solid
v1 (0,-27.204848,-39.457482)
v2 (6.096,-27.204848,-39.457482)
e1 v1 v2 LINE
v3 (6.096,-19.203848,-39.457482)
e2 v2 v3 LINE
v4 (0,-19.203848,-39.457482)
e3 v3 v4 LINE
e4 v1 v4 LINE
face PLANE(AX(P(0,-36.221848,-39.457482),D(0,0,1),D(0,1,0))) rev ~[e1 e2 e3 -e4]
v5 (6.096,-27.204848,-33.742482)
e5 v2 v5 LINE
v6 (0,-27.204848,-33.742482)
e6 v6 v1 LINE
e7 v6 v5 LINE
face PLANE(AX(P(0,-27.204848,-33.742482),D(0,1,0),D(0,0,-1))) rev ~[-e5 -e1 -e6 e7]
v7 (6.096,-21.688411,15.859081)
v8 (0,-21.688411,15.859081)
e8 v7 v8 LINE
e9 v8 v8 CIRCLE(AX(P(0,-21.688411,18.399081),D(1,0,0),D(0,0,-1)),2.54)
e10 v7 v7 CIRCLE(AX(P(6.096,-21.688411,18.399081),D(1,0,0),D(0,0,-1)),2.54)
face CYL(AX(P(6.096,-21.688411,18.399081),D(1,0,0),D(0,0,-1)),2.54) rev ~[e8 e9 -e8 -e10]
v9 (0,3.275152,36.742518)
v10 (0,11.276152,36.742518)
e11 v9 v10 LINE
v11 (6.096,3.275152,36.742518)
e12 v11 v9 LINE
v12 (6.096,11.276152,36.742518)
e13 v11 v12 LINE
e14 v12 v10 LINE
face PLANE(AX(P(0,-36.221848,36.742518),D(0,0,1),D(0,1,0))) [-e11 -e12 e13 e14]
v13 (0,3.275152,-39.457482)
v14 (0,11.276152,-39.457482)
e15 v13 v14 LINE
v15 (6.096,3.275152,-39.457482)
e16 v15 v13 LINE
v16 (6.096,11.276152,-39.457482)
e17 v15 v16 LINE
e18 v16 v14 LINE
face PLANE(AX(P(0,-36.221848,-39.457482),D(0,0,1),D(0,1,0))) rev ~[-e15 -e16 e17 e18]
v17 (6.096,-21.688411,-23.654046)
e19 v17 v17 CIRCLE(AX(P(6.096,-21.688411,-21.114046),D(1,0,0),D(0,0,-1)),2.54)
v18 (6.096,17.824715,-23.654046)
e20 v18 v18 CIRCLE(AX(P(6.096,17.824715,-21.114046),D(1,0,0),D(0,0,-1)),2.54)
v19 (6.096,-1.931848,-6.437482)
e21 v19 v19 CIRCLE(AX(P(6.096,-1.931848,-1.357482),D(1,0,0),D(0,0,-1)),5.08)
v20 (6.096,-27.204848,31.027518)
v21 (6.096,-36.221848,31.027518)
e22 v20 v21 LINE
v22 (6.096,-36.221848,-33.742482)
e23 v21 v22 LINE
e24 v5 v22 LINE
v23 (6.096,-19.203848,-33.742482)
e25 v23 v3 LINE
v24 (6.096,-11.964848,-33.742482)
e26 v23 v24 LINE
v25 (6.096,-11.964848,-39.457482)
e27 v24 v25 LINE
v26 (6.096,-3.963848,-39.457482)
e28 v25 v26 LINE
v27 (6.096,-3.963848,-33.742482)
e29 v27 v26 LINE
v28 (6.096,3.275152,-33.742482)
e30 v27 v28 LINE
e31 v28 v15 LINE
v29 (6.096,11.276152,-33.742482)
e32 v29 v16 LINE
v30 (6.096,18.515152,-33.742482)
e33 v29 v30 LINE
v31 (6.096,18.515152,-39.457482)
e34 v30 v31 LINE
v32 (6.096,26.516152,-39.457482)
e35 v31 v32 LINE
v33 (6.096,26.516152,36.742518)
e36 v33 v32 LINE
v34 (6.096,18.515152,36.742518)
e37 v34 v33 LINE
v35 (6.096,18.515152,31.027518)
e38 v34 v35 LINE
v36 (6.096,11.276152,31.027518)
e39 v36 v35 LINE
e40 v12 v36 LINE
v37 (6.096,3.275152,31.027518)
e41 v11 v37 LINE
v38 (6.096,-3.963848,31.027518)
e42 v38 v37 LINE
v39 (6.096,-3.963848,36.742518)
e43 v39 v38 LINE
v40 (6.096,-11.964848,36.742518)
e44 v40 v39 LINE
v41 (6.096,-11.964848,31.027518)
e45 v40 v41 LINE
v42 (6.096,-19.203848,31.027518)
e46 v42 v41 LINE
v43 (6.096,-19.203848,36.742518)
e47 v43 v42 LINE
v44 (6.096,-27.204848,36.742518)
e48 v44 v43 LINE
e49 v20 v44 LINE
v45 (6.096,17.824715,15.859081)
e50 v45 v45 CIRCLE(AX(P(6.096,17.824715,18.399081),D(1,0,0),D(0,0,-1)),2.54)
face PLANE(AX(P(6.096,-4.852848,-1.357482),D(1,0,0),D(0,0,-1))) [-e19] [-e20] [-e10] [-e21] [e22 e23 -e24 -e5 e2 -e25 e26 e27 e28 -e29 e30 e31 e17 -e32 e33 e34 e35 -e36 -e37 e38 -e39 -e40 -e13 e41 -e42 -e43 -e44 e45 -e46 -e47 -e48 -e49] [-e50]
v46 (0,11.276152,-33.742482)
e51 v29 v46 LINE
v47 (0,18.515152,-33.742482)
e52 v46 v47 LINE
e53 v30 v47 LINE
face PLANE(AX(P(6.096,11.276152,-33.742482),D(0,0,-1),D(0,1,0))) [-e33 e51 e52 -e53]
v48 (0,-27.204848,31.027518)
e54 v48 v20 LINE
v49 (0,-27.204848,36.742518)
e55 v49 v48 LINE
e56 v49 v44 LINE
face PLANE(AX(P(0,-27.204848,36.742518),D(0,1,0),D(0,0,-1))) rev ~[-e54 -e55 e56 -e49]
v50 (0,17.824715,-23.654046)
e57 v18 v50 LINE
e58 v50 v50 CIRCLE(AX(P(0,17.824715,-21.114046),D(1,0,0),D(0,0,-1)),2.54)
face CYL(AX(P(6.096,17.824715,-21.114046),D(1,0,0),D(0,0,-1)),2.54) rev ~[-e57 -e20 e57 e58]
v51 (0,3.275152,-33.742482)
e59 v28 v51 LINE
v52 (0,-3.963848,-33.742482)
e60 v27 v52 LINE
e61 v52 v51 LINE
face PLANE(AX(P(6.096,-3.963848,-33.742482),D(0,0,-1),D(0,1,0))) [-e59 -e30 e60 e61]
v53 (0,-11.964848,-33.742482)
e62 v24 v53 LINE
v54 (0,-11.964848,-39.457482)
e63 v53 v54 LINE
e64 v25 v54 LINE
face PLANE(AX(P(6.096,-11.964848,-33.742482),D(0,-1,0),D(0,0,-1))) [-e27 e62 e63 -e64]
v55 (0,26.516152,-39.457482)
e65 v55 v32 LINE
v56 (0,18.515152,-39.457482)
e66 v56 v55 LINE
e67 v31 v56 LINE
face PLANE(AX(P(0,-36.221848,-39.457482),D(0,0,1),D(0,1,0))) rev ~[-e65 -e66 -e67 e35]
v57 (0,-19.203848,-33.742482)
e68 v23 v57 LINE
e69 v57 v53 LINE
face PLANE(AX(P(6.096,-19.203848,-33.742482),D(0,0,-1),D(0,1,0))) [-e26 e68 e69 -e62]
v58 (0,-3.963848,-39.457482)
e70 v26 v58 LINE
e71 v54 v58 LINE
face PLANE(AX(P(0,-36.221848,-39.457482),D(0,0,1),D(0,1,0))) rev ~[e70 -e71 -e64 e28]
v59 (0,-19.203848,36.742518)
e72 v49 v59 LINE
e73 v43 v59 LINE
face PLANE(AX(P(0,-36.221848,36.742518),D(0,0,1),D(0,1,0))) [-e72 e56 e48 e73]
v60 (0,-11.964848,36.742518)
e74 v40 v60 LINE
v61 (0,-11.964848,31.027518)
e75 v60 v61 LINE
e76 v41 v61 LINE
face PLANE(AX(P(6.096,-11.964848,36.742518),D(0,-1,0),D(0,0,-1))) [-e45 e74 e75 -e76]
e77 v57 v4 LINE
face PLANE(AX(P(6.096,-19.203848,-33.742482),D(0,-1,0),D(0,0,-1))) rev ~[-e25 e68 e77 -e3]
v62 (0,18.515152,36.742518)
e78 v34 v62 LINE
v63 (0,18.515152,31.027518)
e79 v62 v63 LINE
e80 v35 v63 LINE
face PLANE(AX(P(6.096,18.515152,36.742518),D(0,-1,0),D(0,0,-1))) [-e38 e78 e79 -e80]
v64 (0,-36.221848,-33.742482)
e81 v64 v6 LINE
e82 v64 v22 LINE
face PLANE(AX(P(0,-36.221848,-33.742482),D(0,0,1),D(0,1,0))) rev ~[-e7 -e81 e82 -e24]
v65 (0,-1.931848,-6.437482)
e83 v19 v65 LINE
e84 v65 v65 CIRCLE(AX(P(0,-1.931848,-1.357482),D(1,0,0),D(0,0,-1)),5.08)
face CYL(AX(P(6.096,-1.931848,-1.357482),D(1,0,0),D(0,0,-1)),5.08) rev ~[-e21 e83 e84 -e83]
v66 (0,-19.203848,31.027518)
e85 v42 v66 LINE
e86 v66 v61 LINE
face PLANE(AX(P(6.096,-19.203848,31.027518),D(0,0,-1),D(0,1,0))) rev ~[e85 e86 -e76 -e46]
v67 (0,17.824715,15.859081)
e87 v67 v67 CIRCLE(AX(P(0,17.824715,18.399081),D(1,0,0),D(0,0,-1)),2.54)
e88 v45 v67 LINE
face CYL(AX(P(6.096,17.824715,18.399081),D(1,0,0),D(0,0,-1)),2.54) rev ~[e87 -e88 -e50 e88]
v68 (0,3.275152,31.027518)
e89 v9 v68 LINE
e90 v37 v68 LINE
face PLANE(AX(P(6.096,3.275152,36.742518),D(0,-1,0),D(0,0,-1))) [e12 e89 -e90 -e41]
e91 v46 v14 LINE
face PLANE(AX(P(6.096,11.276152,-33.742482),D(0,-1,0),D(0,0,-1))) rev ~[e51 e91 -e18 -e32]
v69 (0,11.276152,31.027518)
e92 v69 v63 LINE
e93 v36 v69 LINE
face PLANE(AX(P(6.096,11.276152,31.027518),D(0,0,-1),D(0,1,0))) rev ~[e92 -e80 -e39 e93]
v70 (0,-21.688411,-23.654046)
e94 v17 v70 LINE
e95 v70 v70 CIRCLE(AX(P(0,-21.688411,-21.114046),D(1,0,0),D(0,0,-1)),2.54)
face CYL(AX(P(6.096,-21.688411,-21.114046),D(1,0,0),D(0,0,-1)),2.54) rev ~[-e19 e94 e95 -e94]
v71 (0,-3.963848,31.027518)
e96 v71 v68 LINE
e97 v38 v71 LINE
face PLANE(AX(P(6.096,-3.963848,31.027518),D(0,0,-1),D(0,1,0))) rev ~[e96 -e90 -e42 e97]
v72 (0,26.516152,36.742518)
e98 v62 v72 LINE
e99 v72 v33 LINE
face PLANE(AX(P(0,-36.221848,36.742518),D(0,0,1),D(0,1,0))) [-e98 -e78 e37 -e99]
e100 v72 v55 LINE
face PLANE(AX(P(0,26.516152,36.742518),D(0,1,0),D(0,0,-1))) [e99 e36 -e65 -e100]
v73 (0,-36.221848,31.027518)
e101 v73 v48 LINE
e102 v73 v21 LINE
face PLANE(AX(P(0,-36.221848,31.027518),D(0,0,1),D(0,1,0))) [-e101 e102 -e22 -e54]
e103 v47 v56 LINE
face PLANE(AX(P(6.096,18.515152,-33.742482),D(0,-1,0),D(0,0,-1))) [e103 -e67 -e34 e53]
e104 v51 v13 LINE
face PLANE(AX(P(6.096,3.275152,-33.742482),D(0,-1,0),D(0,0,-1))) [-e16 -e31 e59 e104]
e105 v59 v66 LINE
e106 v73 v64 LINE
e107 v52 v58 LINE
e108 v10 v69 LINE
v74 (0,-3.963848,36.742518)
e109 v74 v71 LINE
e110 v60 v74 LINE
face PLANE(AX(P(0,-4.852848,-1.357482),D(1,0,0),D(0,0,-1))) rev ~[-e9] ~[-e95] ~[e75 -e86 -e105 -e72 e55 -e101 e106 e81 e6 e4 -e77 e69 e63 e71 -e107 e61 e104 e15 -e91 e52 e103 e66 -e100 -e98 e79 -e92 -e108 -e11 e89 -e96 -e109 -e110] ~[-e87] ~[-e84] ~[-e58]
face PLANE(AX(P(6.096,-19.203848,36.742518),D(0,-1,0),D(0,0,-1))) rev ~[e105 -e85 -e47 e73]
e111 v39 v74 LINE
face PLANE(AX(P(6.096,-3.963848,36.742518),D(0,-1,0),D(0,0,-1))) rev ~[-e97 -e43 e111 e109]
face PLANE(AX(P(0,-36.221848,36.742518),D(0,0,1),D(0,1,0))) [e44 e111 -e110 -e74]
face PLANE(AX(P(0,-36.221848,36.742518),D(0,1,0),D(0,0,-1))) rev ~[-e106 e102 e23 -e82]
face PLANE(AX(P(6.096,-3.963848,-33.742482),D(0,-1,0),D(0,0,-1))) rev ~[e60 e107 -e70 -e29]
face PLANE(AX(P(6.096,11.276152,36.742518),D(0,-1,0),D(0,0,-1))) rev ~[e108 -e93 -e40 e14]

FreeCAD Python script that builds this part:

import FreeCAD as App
import Part
import Sketcher

V = App.Vector
Q = App.Units.Quantity

doc = App.newDocument("Part")
params = doc.addObject("Spreadsheet::Sheet", "Params")
for row, (alias, value) in enumerate([
    ("sketch1_height", "3 in"),
    ("sketch1_width", "2.47 in"),
    ("pad1_length", "0.24 in"),
    ("sketch2_diameter", "0.4 in"),
    ("sketch2_diameter2", "0.2 in"),
    ("pocket1_length", "0.24 in"),
    ("sketch3_width", "0.285 in"),
    ("sketch3_height", "0.225 in"),
    ("pocket2_length", "0.24 in"),
    ("sketch4_width", "0.355 in"),
    ("sketch4_height", "0.225 in"),
], start=1):
    params.set(f"A{row}", alias)
    params.set(f"B{row}", "=" + value)
    params.setAlias(f"B{row}", alias)

body = doc.addObject("PartDesign::Body", "Body")

# Sketch on YZ plane
sketch1 = body.newObject("Sketcher::SketchObject", "Sketch")
sketch1.AttachmentSupport = (doc.getObject("YZ_Plane"), [""])
sketch1.MapMode = "FlatFace"
sketch1.addGeometry([
    Part.LineSegment(V(27, 37, 0), V(-36, 37, 0)),
    Part.LineSegment(V(-36, 37, 0), V(-36, -39, 0)),
    Part.LineSegment(V(-36, -39, 0), V(27, -39, 0)),
    Part.LineSegment(V(27, -39, 0), V(27, 37, 0)),
], False)
sketch1.addConstraint([
    Sketcher.Constraint("Coincident", 0, 2, 1, 1),
    Sketcher.Constraint("Coincident", 1, 2, 2, 1),
    Sketcher.Constraint("Coincident", 2, 2, 3, 1),
    Sketcher.Constraint("Coincident", 3, 2, 0, 1),
    Sketcher.Constraint("Horizontal", 0),
    Sketcher.Constraint("Vertical", 1),
    Sketcher.Constraint("Horizontal", 2),
    Sketcher.Constraint("Vertical", 3),
    Sketcher.Constraint("DistanceY", 1, 2, 1, 1, Q("3 in")),
    Sketcher.Constraint("DistanceX", 0, 2, 0, 1, Q("2.47 in")),
    Sketcher.Constraint("DistanceX", 0, 2, -1, 1, 36.221848),
    Sketcher.Constraint("DistanceY", -1, 1, 0, 2, 36.742518),
])
sketch1.setExpression("Constraints[8]", "Params.sketch1_height")
sketch1.setExpression("Constraints[9]", "Params.sketch1_width")
pad1 = body.newObject("PartDesign::Pad", "Pad")
pad1.Profile = sketch1
pad1.setExpression("Length", "Params.pad1_length")

# Sketch on YZ plane
sketch2 = body.newObject("Sketcher::SketchObject", "Sketch001")
sketch2.AttachmentSupport = (doc.getObject("YZ_Plane"), [""])
sketch2.MapMode = "FlatFace"
sketch2.AttachmentOffset = App.Placement(V(0, 0, 0.24 * 25.4), App.Rotation())
sketch2.addGeometry([
    Part.Circle(V(-1.9, -1.4, 0), V(0, 0, 1), 5.1),  # 0
    Part.Circle(V(17.8, 18.4, 0), V(0, 0, 1), 2.5),  # 1
    Part.Circle(V(17.8, -21.1, 0), V(0, 0, 1), 2.5),  # 2
    Part.Circle(V(-21.7, -21.1, 0), V(0, 0, 1), 2.5),  # 3
    Part.Circle(V(-21.7, 18.4, 0), V(0, 0, 1), 2.5),  # 4
], False)
sketch2.addConstraint([
    Sketcher.Constraint("Equal", 1, 2),
    Sketcher.Constraint("Equal", 2, 3),
    Sketcher.Constraint("Equal", 3, 4),
    Sketcher.Constraint("Horizontal", 2, 3, 3, 3),
    Sketcher.Constraint("Horizontal", 1, 3, 4, 3),
    Sketcher.Constraint("Vertical", 1, 3, 2, 3),
    Sketcher.Constraint("Vertical", 3, 3, 4, 3),
    Sketcher.Constraint("Diameter", 0, Q("0.4 in")),
    Sketcher.Constraint("Diameter", 1, Q("0.2 in")),
    Sketcher.Constraint("DistanceY", -1, 1, 1, 3, 18.399081),
    Sketcher.Constraint("DistanceX", 3, 3, -1, 1, 21.688411),
    Sketcher.Constraint("DistanceX", 0, 3, -1, 1, 1.931848),
    Sketcher.Constraint("DistanceY", 0, 3, -1, 1, 1.357482),
    Sketcher.Constraint("DistanceX", -1, 1, 1, 3, 17.824715),
    Sketcher.Constraint("DistanceY", 2, 3, -1, 1, 21.114046),
])
sketch2.setExpression("Constraints[7]", "Params.sketch2_diameter")
sketch2.setExpression("Constraints[8]", "Params.sketch2_diameter2")
pocket1 = body.newObject("PartDesign::Pocket", "Pocket")
pocket1.Profile = sketch2
pocket1.setExpression("Length", "Params.pocket1_length")

# Sketch on YZ plane
sketch3 = body.newObject("Sketcher::SketchObject", "Sketch002")
sketch3.AttachmentSupport = (doc.getObject("YZ_Plane"), [""])
sketch3.MapMode = "FlatFace"
sketch3.AttachmentOffset = App.Placement(V(0, 0, 0.24 * 25.4), App.Rotation())
sketch3.addGeometry([
    Part.LineSegment(V(19, 37, 0), V(11, 37, 0)),  # 0
    Part.LineSegment(V(11, 37, 0), V(11, 31, 0)),  # 1
    Part.LineSegment(V(11, 31, 0), V(19, 31, 0)),  # 2
    Part.LineSegment(V(19, 31, 0), V(19, 37, 0)),  # 3
    Part.LineSegment(V(3, 37, 0), V(-4, 37, 0)),  # 4
    Part.LineSegment(V(-4, 37, 0), V(-4, 31, 0)),  # 5
    Part.LineSegment(V(-4, 31, 0), V(3, 31, 0)),  # 6
    Part.LineSegment(V(3, 31, 0), V(3, 37, 0)),  # 7
    Part.LineSegment(V(-12, 37, 0), V(-19, 37, 0)),  # 8
    Part.LineSegment(V(-19, 37, 0), V(-19, 31, 0)),  # 9
    Part.LineSegment(V(-19, 31, 0), V(-12, 31, 0)),  # 10
    Part.LineSegment(V(-12, 31, 0), V(-12, 37, 0)),  # 11
    Part.LineSegment(V(-12, -34, 0), V(-19, -34, 0)),  # 12
    Part.LineSegment(V(-19, -34, 0), V(-19, -39, 0)),  # 13
    Part.LineSegment(V(-19, -39, 0), V(-12, -39, 0)),  # 14
    Part.LineSegment(V(-12, -39, 0), V(-12, -34, 0)),  # 15
    Part.LineSegment(V(19, -34, 0), V(11, -34, 0)),  # 16
    Part.LineSegment(V(11, -34, 0), V(11, -39, 0)),  # 17
    Part.LineSegment(V(11, -39, 0), V(19, -39, 0)),  # 18
    Part.LineSegment(V(19, -39, 0), V(19, -34, 0)),  # 19
    Part.LineSegment(V(3, -34, 0), V(-4, -34, 0)),  # 20
    Part.LineSegment(V(-4, -34, 0), V(-4, -39, 0)),  # 21
    Part.LineSegment(V(-4, -39, 0), V(3, -39, 0)),  # 22
    Part.LineSegment(V(3, -39, 0), V(3, -34, 0)),  # 23
], False)
sketch3.addConstraint([
    Sketcher.Constraint("Coincident", 0, 2, 1, 1),
    Sketcher.Constraint("Coincident", 1, 2, 2, 1),
    Sketcher.Constraint("Coincident", 2, 2, 3, 1),
    Sketcher.Constraint("Coincident", 3, 2, 0, 1),
    Sketcher.Constraint("Coincident", 4, 2, 5, 1),
    Sketcher.Constraint("Coincident", 5, 2, 6, 1),
    Sketcher.Constraint("Coincident", 6, 2, 7, 1),
    Sketcher.Constraint("Coincident", 7, 2, 4, 1),
    Sketcher.Constraint("Coincident", 8, 2, 9, 1),
    Sketcher.Constraint("Coincident", 9, 2, 10, 1),
    Sketcher.Constraint("Coincident", 10, 2, 11, 1),
    Sketcher.Constraint("Coincident", 11, 2, 8, 1),
    Sketcher.Constraint("Coincident", 12, 2, 13, 1),
    Sketcher.Constraint("Coincident", 13, 2, 14, 1),
    Sketcher.Constraint("Coincident", 14, 2, 15, 1),
    Sketcher.Constraint("Coincident", 15, 2, 12, 1),
    Sketcher.Constraint("Coincident", 16, 2, 17, 1),
    Sketcher.Constraint("Coincident", 17, 2, 18, 1),
    Sketcher.Constraint("Coincident", 18, 2, 19, 1),
    Sketcher.Constraint("Coincident", 19, 2, 16, 1),
    Sketcher.Constraint("Coincident", 20, 2, 21, 1),
    Sketcher.Constraint("Coincident", 21, 2, 22, 1),
    Sketcher.Constraint("Coincident", 22, 2, 23, 1),
    Sketcher.Constraint("Coincident", 23, 2, 20, 1),
    Sketcher.Constraint("Horizontal", 0),
    Sketcher.Constraint("Vertical", 1),
    Sketcher.Constraint("Horizontal", 2),
    Sketcher.Constraint("Vertical", 3),
    Sketcher.Constraint("Horizontal", 4),
    Sketcher.Constraint("Vertical", 5),
    Sketcher.Constraint("Horizontal", 6),
    Sketcher.Constraint("Vertical", 7),
    Sketcher.Constraint("Horizontal", 8),
    Sketcher.Constraint("Vertical", 9),
    Sketcher.Constraint("Horizontal", 10),
    Sketcher.Constraint("Vertical", 11),
    Sketcher.Constraint("Horizontal", 12),
    Sketcher.Constraint("Vertical", 13),
    Sketcher.Constraint("Horizontal", 14),
    Sketcher.Constraint("Vertical", 15),
    Sketcher.Constraint("Horizontal", 16),
    Sketcher.Constraint("Vertical", 17),
    Sketcher.Constraint("Horizontal", 18),
    Sketcher.Constraint("Vertical", 19),
    Sketcher.Constraint("Horizontal", 20),
    Sketcher.Constraint("Vertical", 21),
    Sketcher.Constraint("Horizontal", 22),
    Sketcher.Constraint("Vertical", 23),
    Sketcher.Constraint("Horizontal", 3, 2, 4, 2),
    Sketcher.Constraint("Horizontal", 2, 2, 5, 2),
    Sketcher.Constraint("Horizontal", 7, 2, 8, 2),
    Sketcher.Constraint("Horizontal", 6, 2, 9, 2),
    Sketcher.Constraint("Horizontal", 15, 2, 16, 2),
    Sketcher.Constraint("Horizontal", 14, 2, 17, 2),
    Sketcher.Constraint("Horizontal", 19, 2, 20, 2),
    Sketcher.Constraint("Horizontal", 18, 2, 21, 2),
    Sketcher.Constraint("Vertical", 9, 2, 12, 2),
    Sketcher.Constraint("Vertical", 11, 2, 14, 2),
    Sketcher.Constraint("Vertical", 1, 2, 16, 2),
    Sketcher.Constraint("Vertical", 3, 2, 18, 2),
    Sketcher.Constraint("Vertical", 5, 2, 20, 2),
    Sketcher.Constraint("Vertical", 7, 2, 22, 2),
    Sketcher.Constraint("Equal", 2, 4),
    Sketcher.Constraint("Equal", 6, 8),
    Sketcher.Constraint("Equal", 11, 13),
    Sketcher.Constraint("DistanceX", 4, 2, 0, 2, Q("0.6 in")),
    Sketcher.Constraint("DistanceX", 8, 2, 4, 2, Q("0.6 in")),
    Sketcher.Constraint("DistanceX", 0, 2, 0, 1, Q("0.285 in")),
    Sketcher.Constraint("DistanceY", 1, 2, 1, 1, Q("0.225 in")),
    Sketcher.Constraint("DistanceY", 12, 2, 9, 2, Q("2.55 in")),
    Sketcher.Constraint("DistanceX", -1, 1, 0, 2, 11.276152),
    Sketcher.Constraint("DistanceY", -1, 1, 0, 2, 36.742518),
])
sketch3.setExpression("Constraints[67]", "Params.sketch3_width")
sketch3.setExpression("Constraints[68]", "Params.sketch3_height")
pocket2 = body.newObject("PartDesign::Pocket", "Pocket001")
pocket2.Profile = sketch3
pocket2.setExpression("Length", "Params.pocket2_length")

# Sketch on YZ plane
sketch4 = body.newObject("Sketcher::SketchObject", "Sketch003")
sketch4.AttachmentSupport = (doc.getObject("YZ_Plane"), [""])
sketch4.MapMode = "FlatFace"
sketch4.AttachmentOffset = App.Placement(V(0, 0, 0.24 * 25.4), App.Rotation())
sketch4.addGeometry([
    Part.LineSegment(V(-27, -34, 0), V(-36, -34, 0)),  # 0
    Part.LineSegment(V(-36, -34, 0), V(-36, -39, 0)),  # 1
    Part.LineSegment(V(-36, -39, 0), V(-27, -39, 0)),  # 2
    Part.LineSegment(V(-27, -39, 0), V(-27, -34, 0)),  # 3
    Part.LineSegment(V(-27, 37, 0), V(-36, 37, 0)),  # 4
    Part.LineSegment(V(-36, 37, 0), V(-36, 31, 0)),  # 5
    Part.LineSegment(V(-36, 31, 0), V(-27, 31, 0)),  # 6
    Part.LineSegment(V(-27, 31, 0), V(-27, 37, 0)),  # 7
], False)
sketch4.addConstraint([
    Sketcher.Constraint("Coincident", 0, 2, 1, 1),
    Sketcher.Constraint("Coincident", 1, 2, 2, 1),
    Sketcher.Constraint("Coincident", 2, 2, 3, 1),
    Sketcher.Constraint("Coincident", 3, 2, 0, 1),
    Sketcher.Constraint("Coincident", 4, 2, 5, 1),
    Sketcher.Constraint("Coincident", 5, 2, 6, 1),
    Sketcher.Constraint("Coincident", 6, 2, 7, 1),
    Sketcher.Constraint("Coincident", 7, 2, 4, 1),
    Sketcher.Constraint("Horizontal", 0),
    Sketcher.Constraint("Vertical", 1),
    Sketcher.Constraint("Horizontal", 2),
    Sketcher.Constraint("Vertical", 3),
    Sketcher.Constraint("Horizontal", 4),
    Sketcher.Constraint("Vertical", 5),
    Sketcher.Constraint("Horizontal", 6),
    Sketcher.Constraint("Vertical", 7),
    Sketcher.Constraint("Vertical", 1, 2, 4, 2),
    Sketcher.Constraint("Vertical", 3, 2, 6, 2),
    Sketcher.Constraint("Equal", 3, 5),
    Sketcher.Constraint("DistanceY", 1, 2, 4, 2, Q("3 in")),
    Sketcher.Constraint("DistanceX", 0, 2, 0, 1, Q("0.355 in")),
    Sketcher.Constraint("DistanceY", 1, 2, 1, 1, Q("0.225 in")),
    Sketcher.Constraint("DistanceX", 0, 2, -1, 1, 36.221848),
    Sketcher.Constraint("DistanceY", 0, 2, -1, 1, 33.742482),
])
sketch4.setExpression("Constraints[20]", "Params.sketch4_width")
sketch4.setExpression("Constraints[21]", "Params.sketch4_height")
pocket3 = body.newObject("PartDesign::Pocket", "Pocket002")
pocket3.Profile = sketch4
pocket3.Type = "ThroughAll"
pocket3.Midplane = True

doc.recompute()
